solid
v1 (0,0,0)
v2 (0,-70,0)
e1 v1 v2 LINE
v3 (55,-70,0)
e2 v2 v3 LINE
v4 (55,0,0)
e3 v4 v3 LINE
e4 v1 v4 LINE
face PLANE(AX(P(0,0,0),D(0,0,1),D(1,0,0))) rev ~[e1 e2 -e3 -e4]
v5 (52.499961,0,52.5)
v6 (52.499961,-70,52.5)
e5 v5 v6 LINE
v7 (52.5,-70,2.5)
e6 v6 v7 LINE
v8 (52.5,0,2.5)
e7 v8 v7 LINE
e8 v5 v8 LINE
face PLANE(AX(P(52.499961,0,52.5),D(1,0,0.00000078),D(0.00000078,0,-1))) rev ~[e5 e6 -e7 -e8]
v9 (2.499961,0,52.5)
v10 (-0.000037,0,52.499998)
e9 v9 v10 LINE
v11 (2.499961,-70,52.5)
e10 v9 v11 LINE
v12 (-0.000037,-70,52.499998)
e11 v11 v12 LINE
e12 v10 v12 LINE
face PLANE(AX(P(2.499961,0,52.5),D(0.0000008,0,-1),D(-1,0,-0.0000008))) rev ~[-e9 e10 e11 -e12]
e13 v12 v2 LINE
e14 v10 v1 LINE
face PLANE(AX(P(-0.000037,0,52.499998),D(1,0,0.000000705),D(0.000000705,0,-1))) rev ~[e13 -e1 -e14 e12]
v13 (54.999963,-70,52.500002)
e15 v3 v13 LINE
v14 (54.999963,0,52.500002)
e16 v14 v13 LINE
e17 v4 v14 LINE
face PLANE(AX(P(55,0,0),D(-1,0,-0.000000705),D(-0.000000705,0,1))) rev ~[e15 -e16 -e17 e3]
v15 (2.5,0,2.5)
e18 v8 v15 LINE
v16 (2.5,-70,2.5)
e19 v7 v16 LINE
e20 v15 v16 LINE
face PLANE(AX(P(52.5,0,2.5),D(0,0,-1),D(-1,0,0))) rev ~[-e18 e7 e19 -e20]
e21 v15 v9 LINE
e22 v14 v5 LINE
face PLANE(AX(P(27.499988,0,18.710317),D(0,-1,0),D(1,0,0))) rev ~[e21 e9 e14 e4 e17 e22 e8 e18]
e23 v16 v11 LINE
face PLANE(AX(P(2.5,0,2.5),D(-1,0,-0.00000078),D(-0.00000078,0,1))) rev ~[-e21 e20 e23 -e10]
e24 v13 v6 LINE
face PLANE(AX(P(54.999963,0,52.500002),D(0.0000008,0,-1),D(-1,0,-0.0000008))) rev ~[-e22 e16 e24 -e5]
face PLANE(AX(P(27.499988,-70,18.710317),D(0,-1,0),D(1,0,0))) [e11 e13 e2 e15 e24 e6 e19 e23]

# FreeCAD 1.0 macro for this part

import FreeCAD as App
import Part
import Sketcher

V = App.Vector

doc = App.newDocument("Part")
body = doc.addObject("PartDesign::Body", "Body")

# Sketch on XZ plane
sketch1 = body.newObject("Sketcher::SketchObject", "Sketch")
sketch1.AttachmentSupport = (doc.getObject("XZ_Plane"), [""])
sketch1.MapMode = "FlatFace"
sketch1.addGeometry([
    Part.LineSegment(V(0, 52.5, 0), V(0, 0, 0)),  # 0
    Part.LineSegment(V(0, 0, 0), V(55, 0, 0)),  # 1
    Part.LineSegment(V(55, 0, 0), V(55, 52.5, 0)),  # 2
    Part.LineSegment(V(55, 52.5, 0), V(52.5, 52.5, 0)),  # 3
    Part.LineSegment(V(52.5, 52.5, 0), V(52.5, 2.5, 0)),  # 4
    Part.LineSegment(V(52.5, 2.5, 0), V(2.5, 2.5, 0)),  # 5
    Part.LineSegment(V(2.5, 2.5, 0), V(2.5, 52.5, 0)),  # 6
    Part.LineSegment(V(2.5, 52.5, 0), V(0, 52.5, 0)),  # 7
], False)
sketch1.addConstraint([
    Sketcher.Constraint("Coincident", 0, 2, 1, 1),
    Sketcher.Constraint("Coincident", 1, 2, 2, 1),
    Sketcher.Constraint("Coincident", 2, 2, 3, 1),
    Sketcher.Constraint("Coincident", 3, 2, 4, 1),
    Sketcher.Constraint("Coincident", 4, 2, 5, 1),
    Sketcher.Constraint("Coincident", 5, 2, 6, 1),
    Sketcher.Constraint("Coincident", 6, 2, 7, 1),
    Sketcher.Constraint("Coincident", 7, 2, 0, 1),
    Sketcher.Constraint("Horizontal", 1),
    Sketcher.Constraint("Horizontal", 5),
    Sketcher.Constraint("Coincident", 0, 2, -1, 1),
    Sketcher.Constraint("Parallel", 0, 2),
    Sketcher.Constraint("Perpendicular", 2, 3),
    Sketcher.Constraint("Perpendicular", 3, 4),
    Sketcher.Constraint("Parallel", 4, 6),
    Sketcher.Constraint("Perpendicular", 6, 7),
    Sketcher.Constraint("Horizontal", 3, 2, 6, 2),
    Sketcher.Constraint("DistanceX", 1, 1, 1, 2, 55.0),
    Sketcher.Constraint("DistanceX", 5, 2, 5, 1, 50.0),
    Sketcher.Constraint("Distance", 4, 50.0),
    Sketcher.Constraint("Distance", 0, 52.499998),
    Sketcher.Constraint("Distance", 7, 2.499998),
    Sketcher.Constraint("DistanceY", -1, 1, 3, 2, 52.5),
])
pad1 = body.newObject("PartDesign::Pad", "Pad")
pad1.Profile = sketch1
pad1.Length = 70

doc.recompute()
